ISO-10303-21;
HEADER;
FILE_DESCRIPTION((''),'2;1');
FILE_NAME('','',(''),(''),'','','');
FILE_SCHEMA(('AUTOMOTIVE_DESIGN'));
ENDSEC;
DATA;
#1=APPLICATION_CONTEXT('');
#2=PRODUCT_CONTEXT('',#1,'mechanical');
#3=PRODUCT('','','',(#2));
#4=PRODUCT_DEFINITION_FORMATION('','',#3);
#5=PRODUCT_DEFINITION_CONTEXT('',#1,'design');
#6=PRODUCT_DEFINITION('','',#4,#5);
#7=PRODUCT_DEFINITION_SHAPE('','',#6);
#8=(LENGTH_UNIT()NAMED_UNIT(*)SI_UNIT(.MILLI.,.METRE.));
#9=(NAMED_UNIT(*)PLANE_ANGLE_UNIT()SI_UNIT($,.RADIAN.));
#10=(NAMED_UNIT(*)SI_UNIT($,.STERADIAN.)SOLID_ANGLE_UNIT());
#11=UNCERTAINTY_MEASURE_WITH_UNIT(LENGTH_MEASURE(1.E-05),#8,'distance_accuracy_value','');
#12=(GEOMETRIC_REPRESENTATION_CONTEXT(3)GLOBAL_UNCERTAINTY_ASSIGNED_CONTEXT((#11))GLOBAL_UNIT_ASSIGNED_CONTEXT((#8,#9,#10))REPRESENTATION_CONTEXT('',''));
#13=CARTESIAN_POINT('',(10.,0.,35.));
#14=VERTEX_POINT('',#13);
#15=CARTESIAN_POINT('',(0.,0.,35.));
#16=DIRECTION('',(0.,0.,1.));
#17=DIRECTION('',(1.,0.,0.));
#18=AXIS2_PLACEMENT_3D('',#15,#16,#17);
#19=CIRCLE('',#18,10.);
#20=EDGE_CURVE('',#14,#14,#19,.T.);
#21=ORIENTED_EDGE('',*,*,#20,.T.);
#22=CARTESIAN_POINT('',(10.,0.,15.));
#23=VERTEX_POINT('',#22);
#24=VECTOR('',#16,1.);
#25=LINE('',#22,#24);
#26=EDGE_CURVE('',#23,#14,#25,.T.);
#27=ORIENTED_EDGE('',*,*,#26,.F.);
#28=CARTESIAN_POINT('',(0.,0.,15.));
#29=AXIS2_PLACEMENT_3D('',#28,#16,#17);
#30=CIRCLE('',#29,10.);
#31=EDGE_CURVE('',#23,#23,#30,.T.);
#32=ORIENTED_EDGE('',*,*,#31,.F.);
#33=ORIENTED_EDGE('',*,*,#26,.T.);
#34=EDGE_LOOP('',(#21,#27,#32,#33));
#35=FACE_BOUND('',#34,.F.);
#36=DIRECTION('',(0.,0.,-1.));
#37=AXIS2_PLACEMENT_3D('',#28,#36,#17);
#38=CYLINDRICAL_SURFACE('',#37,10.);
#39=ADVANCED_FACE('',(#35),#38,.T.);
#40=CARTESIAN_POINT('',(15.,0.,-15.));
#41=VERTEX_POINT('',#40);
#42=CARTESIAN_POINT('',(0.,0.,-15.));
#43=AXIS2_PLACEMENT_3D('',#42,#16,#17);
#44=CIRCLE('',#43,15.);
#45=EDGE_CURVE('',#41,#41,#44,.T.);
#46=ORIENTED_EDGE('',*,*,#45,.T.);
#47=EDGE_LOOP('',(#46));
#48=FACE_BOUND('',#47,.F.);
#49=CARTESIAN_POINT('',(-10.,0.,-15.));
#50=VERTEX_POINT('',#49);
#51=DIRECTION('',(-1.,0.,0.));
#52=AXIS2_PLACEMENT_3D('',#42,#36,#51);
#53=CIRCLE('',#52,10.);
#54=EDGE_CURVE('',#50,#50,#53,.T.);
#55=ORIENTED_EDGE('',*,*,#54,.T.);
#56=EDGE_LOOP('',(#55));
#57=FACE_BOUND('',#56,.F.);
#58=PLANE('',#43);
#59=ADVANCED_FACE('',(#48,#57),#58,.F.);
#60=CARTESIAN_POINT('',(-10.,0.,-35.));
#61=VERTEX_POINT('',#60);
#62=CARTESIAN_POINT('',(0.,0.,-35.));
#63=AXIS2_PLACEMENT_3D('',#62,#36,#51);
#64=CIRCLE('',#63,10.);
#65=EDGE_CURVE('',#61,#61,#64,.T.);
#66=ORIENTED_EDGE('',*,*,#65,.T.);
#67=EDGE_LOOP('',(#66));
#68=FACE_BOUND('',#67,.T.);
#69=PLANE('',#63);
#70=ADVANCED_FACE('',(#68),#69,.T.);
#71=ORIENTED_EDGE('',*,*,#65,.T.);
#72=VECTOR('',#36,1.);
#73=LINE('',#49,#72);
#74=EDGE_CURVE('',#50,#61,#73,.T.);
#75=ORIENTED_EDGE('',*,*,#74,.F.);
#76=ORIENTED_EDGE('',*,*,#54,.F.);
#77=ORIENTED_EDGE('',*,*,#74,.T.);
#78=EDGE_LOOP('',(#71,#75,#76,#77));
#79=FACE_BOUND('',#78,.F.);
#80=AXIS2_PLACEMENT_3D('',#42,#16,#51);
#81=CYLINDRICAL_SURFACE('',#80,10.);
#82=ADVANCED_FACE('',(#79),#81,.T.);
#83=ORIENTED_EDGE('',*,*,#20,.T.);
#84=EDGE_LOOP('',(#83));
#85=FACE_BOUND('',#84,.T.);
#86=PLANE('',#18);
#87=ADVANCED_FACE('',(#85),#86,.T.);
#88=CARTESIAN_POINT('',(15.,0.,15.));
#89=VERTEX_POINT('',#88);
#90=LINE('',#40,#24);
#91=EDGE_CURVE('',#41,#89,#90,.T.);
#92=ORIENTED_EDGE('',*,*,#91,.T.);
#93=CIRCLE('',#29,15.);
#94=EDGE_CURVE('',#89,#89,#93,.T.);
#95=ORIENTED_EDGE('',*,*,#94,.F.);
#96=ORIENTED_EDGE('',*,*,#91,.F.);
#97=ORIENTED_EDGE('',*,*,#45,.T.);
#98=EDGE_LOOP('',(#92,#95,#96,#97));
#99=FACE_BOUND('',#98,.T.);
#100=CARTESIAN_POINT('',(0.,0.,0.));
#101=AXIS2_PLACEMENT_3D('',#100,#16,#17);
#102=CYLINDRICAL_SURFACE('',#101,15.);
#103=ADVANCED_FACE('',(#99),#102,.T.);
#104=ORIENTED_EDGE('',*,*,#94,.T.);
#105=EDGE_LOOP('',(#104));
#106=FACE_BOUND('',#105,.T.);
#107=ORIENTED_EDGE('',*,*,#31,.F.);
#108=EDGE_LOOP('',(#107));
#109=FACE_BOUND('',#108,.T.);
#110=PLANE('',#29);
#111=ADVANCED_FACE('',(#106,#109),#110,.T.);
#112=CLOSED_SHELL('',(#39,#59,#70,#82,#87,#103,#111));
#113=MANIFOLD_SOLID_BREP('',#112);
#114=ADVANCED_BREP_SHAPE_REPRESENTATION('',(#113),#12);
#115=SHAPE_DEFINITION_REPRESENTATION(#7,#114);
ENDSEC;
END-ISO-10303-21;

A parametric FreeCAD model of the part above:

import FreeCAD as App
import Part
import Sketcher
Q = App.Units.Quantity

doc = App.newDocument("Part")
body = doc.addObject("PartDesign::Body", "Body")

# Sketch on XY plane
sketch1 = doc.addObject("Sketcher::SketchObject", "Sketch")
body.addObject(sketch1)
sketch1.AttachmentSupport = (doc.XY_Plane, [""])
sketch1.MapMode = "FlatFace"
sketch1.addGeometry(Part.Circle(App.Vector(0, 0, 0), App.Vector(0, 0, 1), 15), False)
sketch1.addConstraint([
    Sketcher.Constraint("Coincident", 0, 3, -1, 1),
    Sketcher.Constraint("Diameter", 0, Q("30 mm")),
])
pad1 = doc.addObject("PartDesign::Pad", "Pad")
body.addObject(pad1)
pad1.Profile = sketch1
pad1.Length = 30
pad1.Midplane = True

# Sketch on XY plane
sketch2 = doc.addObject("Sketcher::SketchObject", "Sketch001")
body.addObject(sketch2)
sketch2.AttachmentSupport = (doc.XY_Plane, [""])
sketch2.MapMode = "FlatFace"
sketch2.AttachmentOffset = App.Placement(App.Vector(0, 0, 15), App.Rotation())
sketch2.addGeometry(Part.Circle(App.Vector(0, 0, 0), App.Vector(0, 0, 1), 10), False)
sketch2.addConstraint([
    Sketcher.Constraint("Coincident", 0, 3, -1, 1),
    Sketcher.Constraint("Diameter", 0, Q("20 mm")),
])
pad2 = doc.addObject("PartDesign::Pad", "Pad001")
body.addObject(pad2)
pad2.Profile = sketch2
pad2.Length = 20

# Sketch on XY plane
sketch3 = doc.addObject("Sketcher::SketchObject", "Sketch002")
body.addObject(sketch3)
sketch3.AttachmentSupport = (doc.XY_Plane, [""])
sketch3.MapMode = "FlatFace"
sketch3.AttachmentOffset = App.Placement(App.Vector(0, 0, -15), App.Rotation())
sketch3.addGeometry(Part.Circle(App.Vector(0, 0, 0), App.Vector(0, 0, 1), 10), False)
sketch3.addConstraint([
    Sketcher.Constraint("Coincident", 0, 3, -1, 1),
    Sketcher.Constraint("Diameter", 0, Q("20 mm")),
])
pad3 = doc.addObject("PartDesign::Pad", "Pad002")
body.addObject(pad3)
pad3.Profile = sketch3
pad3.Length = 20
pad3.Reversed = True

doc.recompute()
